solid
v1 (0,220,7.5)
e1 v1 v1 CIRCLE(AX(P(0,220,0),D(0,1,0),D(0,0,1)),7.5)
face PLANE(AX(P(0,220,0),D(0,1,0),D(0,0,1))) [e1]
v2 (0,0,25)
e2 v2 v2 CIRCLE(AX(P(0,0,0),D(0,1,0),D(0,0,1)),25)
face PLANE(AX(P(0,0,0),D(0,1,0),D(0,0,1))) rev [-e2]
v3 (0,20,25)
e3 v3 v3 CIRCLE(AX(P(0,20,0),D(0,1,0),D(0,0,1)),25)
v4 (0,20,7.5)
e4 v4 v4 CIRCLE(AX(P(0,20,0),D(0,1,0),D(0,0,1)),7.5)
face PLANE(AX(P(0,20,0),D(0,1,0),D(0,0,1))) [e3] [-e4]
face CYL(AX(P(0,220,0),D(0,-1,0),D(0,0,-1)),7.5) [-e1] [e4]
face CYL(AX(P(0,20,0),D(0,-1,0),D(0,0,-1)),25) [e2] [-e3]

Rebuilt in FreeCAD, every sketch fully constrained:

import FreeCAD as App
import Part
import Sketcher

V = App.Vector
Q = App.Units.Quantity

doc = App.newDocument("Part")
body = doc.addObject("PartDesign::Body", "Body")

# Sketch on XZ plane
sketch1 = doc.addObject("Sketcher::SketchObject", "Sketch")
body.addObject(sketch1)
sketch1.AttachmentSupport = (doc.XZ_Plane, [""])
sketch1.MapMode = "FlatFace"
sketch1.addGeometry(Part.Circle(V(0, 0, 0), V(0, 0, 1), 25), False)
sketch1.addConstraint([
    Sketcher.Constraint("Coincident", 0, 3, -1, 1),
    Sketcher.Constraint("Diameter", 0, Q("50 mm")),
])
pad1 = doc.addObject("PartDesign::Pad", "Pad")
body.addObject(pad1)
pad1.Profile = sketch1
pad1.Length = 20
pad1.Reversed = True

# Sketch on XZ plane
sketch2 = doc.addObject("Sketcher::SketchObject", "Sketch001")
body.addObject(sketch2)
sketch2.AttachmentSupport = (doc.XZ_Plane, [""])
sketch2.MapMode = "FlatFace"
sketch2.AttachmentOffset = App.Placement(V(0, 0, -20), App.Rotation())
sketch2.addGeometry(Part.Circle(V(0, 0, 0), V(0, 0, 1), 8), False)
sketch2.addConstraint([
    Sketcher.Constraint("Coincident", 0, 3, -1, 1),
    Sketcher.Constraint("Diameter", 0, Q("15 mm")),
])
pad2 = doc.addObject("PartDesign::Pad", "Pad001")
body.addObject(pad2)
pad2.Profile = sketch2
pad2.Length = 200
pad2.Reversed = True

doc.recompute()
